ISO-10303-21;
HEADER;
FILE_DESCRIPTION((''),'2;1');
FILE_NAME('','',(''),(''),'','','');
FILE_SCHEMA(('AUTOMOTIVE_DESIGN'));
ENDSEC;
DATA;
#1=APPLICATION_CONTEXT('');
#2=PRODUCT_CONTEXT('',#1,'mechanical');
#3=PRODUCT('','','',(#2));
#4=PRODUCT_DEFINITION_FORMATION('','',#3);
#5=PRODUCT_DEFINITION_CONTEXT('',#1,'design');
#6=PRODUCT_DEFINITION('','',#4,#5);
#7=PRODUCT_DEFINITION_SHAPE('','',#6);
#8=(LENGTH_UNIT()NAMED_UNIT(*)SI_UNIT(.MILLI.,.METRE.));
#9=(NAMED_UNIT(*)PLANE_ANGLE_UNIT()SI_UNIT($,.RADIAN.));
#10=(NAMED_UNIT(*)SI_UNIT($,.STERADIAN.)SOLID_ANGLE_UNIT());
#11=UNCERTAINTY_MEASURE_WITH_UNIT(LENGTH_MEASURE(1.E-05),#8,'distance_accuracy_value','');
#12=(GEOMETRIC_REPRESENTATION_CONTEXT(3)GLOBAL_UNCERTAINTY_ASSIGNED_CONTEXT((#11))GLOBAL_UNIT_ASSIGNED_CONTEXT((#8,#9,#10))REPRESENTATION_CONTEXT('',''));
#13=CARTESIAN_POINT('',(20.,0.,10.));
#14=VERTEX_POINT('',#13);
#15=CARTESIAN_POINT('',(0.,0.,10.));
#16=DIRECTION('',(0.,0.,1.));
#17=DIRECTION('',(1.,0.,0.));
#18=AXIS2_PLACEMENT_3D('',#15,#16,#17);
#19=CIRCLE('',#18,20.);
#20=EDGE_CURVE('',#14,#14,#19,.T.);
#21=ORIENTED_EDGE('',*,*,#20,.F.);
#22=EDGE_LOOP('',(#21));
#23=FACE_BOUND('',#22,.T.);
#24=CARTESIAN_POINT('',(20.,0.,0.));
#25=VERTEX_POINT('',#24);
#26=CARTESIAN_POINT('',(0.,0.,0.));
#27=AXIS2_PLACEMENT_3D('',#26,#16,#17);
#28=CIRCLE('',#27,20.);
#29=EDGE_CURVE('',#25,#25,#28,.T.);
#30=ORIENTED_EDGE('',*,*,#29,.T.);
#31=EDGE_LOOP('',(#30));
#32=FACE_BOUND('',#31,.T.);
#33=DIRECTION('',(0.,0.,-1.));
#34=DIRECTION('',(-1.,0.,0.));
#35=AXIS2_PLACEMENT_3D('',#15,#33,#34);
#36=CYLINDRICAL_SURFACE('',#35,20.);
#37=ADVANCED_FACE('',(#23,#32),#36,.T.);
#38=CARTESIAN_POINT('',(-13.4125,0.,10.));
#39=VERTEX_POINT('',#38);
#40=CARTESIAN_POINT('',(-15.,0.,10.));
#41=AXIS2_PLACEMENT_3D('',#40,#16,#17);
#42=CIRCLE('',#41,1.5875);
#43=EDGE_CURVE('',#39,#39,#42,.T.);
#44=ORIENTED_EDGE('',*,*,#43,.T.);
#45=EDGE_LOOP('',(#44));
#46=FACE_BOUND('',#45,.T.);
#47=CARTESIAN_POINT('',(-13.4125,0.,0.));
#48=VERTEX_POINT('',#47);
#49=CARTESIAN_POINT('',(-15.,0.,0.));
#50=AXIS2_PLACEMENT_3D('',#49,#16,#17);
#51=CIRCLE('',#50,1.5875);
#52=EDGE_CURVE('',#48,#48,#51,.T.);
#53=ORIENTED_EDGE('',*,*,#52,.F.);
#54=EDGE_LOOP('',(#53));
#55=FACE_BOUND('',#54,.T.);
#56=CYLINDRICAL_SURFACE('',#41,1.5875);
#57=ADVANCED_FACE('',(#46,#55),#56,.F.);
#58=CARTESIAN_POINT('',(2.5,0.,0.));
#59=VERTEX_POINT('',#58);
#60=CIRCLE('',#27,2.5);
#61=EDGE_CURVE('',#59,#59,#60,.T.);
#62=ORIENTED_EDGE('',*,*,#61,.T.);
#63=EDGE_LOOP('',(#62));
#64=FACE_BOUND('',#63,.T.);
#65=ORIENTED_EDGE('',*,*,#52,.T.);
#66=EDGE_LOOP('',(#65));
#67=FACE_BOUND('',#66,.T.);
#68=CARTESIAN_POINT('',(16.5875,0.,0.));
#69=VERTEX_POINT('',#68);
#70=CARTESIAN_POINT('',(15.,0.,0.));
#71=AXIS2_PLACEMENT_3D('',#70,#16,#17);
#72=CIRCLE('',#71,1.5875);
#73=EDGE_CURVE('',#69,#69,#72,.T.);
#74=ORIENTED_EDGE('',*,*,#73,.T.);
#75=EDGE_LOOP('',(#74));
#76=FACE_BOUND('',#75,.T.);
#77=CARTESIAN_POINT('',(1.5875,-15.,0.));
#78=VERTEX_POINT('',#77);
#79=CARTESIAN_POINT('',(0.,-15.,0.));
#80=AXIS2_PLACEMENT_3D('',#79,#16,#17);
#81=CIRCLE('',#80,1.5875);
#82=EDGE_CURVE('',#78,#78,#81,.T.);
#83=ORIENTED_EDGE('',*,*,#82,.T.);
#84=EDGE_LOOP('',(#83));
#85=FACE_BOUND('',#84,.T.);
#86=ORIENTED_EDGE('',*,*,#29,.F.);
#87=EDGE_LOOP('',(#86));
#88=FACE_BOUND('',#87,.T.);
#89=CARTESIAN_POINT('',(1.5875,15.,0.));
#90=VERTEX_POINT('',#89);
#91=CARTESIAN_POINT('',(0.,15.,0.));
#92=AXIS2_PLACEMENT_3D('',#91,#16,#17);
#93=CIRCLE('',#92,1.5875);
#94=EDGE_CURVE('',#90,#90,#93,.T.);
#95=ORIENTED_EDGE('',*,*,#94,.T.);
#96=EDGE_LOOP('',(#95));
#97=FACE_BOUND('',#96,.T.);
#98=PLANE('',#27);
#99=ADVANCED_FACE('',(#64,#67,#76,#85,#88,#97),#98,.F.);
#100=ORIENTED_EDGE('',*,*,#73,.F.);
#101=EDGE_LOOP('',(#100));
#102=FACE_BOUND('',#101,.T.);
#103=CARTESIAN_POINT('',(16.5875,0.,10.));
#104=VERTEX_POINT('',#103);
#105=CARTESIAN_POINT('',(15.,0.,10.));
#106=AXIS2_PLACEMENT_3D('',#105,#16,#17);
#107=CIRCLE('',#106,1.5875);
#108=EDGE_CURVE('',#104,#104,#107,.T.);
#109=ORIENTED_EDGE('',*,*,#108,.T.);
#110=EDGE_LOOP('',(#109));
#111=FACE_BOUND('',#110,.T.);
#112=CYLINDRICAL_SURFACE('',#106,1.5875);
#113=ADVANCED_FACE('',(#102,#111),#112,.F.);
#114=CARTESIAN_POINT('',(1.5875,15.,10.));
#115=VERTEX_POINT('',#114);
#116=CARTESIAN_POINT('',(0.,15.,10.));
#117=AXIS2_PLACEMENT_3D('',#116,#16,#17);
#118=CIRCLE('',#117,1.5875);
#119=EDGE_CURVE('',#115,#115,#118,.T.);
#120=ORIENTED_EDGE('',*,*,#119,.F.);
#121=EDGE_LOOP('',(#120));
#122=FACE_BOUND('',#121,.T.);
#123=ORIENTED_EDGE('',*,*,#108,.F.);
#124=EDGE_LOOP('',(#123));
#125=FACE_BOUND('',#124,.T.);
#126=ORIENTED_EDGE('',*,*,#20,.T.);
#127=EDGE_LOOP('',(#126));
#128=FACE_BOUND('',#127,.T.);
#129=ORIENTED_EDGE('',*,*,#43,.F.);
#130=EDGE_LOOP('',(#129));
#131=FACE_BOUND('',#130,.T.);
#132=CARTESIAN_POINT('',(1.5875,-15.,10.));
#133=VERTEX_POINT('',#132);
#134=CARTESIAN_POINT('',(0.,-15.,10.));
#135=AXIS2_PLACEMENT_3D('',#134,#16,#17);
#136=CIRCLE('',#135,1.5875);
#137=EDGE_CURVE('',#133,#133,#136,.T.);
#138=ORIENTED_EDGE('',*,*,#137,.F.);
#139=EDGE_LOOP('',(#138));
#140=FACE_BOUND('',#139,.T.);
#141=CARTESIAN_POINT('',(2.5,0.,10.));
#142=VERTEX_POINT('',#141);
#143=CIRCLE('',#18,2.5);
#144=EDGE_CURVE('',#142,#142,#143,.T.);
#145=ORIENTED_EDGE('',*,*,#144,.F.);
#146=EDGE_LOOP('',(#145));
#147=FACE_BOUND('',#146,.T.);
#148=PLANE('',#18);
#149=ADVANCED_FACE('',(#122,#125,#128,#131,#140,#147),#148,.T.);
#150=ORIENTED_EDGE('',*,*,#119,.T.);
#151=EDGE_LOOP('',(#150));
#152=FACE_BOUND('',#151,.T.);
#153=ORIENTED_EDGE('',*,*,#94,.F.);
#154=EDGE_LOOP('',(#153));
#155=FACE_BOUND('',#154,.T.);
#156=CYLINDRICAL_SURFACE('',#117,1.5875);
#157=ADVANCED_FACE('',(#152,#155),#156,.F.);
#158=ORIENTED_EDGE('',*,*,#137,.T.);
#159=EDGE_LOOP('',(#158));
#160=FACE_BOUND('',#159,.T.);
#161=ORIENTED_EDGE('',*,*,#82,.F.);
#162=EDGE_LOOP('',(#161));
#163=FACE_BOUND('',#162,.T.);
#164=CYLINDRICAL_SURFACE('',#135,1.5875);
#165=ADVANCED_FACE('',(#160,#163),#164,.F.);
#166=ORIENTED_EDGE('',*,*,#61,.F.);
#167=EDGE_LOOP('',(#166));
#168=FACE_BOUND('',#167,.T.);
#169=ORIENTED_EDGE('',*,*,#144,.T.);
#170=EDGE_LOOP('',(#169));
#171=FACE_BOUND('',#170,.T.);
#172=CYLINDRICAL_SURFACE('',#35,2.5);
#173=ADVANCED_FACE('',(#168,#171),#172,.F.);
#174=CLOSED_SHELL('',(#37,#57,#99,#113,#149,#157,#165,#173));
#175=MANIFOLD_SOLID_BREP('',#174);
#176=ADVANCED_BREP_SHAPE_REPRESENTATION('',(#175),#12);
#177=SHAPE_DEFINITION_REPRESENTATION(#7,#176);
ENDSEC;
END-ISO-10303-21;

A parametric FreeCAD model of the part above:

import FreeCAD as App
import Part
import Sketcher
Q = App.Units.Quantity

doc = App.newDocument("Part")
params = doc.addObject("Spreadsheet::Sheet", "Params")
for row, (alias, value) in enumerate([
    ("sketch1_diameter", "40 mm"),
    ("sketch1_diameter2", "5 mm"),
    ("pad1_length", "10 mm"),
    ("hole_diameter", "3.175 mm"),
], start=1):
    params.set(f"A{row}", alias)
    params.set(f"B{row}", "=" + value)
    params.setAlias(f"B{row}", alias)

body = doc.addObject("PartDesign::Body", "Body")

sketch1 = body.newObject("Sketcher::SketchObject", "Sketch")
sketch1.AttachmentSupport = (doc.getObject("XY_Plane"), [""])
sketch1.MapMode = "FlatFace"
sketch1.addGeometry([
    Part.Circle(App.Vector(0, 0, 0), App.Vector(0, 0, 1), 20),
    Part.Circle(App.Vector(0, 0, 0), App.Vector(0, 0, 1), 2.5),
], False)
sketch1.addConstraint([
    Sketcher.Constraint("Coincident", 0, 3, -1, 1),
    Sketcher.Constraint("Coincident", 1, 3, -1, 1),
    Sketcher.Constraint("Diameter", 0, Q("40 mm")),
    Sketcher.Constraint("Diameter", 1, Q("5 mm")),
])
sketch1.setExpression("Constraints[2]", "Params.sketch1_diameter")
sketch1.setExpression("Constraints[3]", "Params.sketch1_diameter2")
pad1 = body.newObject("PartDesign::Pad", "Pad")
pad1.Profile = sketch1
pad1.setExpression("Length", "Params.pad1_length")

sketch2 = body.newObject("Sketcher::SketchObject", "Sketch001")
sketch2.AttachmentSupport = (doc.getObject("XY_Plane"), [""])
sketch2.MapMode = "FlatFace"
sketch2.AttachmentOffset = App.Placement(App.Vector(0, 0, 10), App.Rotation())
sketch2.addGeometry([
    Part.Circle(App.Vector(0, 15, 0), App.Vector(0, 0, 1), 1.6),
    Part.Circle(App.Vector(15, 0, 0), App.Vector(0, 0, 1), 1.6),
    Part.Circle(App.Vector(0, -15, 0), App.Vector(0, 0, 1), 1.6),
    Part.Circle(App.Vector(-15, 0, 0), App.Vector(0, 0, 1), 1.6),
], False)
sketch2.addConstraint([
    Sketcher.Constraint("Equal", 0, 1),
    Sketcher.Constraint("Equal", 1, 2),
    Sketcher.Constraint("Equal", 2, 3),
    Sketcher.Constraint("Symmetric", 0, 3, 2, 3, -1, 1),
    Sketcher.Constraint("Symmetric", 1, 3, 3, 3, -1, 1),
    Sketcher.Constraint("PointOnObject", 0, 3, -2),
    Sketcher.Constraint("PointOnObject", 1, 3, -1),
    Sketcher.Constraint("Diameter", 0, Q("3.175 mm")),
    Sketcher.Constraint("DistanceY", -1, 1, 0, 3, Q("15 mm")),
    Sketcher.Constraint("DistanceX", -1, 1, 1, 3, Q("15 mm")),
])
doc.recompute()
hole = body.newObject("PartDesign::Hole", "Hole")
hole.Profile = sketch2
hole.ThreadType = "None"
hole.setExpression("Diameter", "Params.hole_diameter")
hole.DepthType = "ThroughAll"

doc.recompute()
